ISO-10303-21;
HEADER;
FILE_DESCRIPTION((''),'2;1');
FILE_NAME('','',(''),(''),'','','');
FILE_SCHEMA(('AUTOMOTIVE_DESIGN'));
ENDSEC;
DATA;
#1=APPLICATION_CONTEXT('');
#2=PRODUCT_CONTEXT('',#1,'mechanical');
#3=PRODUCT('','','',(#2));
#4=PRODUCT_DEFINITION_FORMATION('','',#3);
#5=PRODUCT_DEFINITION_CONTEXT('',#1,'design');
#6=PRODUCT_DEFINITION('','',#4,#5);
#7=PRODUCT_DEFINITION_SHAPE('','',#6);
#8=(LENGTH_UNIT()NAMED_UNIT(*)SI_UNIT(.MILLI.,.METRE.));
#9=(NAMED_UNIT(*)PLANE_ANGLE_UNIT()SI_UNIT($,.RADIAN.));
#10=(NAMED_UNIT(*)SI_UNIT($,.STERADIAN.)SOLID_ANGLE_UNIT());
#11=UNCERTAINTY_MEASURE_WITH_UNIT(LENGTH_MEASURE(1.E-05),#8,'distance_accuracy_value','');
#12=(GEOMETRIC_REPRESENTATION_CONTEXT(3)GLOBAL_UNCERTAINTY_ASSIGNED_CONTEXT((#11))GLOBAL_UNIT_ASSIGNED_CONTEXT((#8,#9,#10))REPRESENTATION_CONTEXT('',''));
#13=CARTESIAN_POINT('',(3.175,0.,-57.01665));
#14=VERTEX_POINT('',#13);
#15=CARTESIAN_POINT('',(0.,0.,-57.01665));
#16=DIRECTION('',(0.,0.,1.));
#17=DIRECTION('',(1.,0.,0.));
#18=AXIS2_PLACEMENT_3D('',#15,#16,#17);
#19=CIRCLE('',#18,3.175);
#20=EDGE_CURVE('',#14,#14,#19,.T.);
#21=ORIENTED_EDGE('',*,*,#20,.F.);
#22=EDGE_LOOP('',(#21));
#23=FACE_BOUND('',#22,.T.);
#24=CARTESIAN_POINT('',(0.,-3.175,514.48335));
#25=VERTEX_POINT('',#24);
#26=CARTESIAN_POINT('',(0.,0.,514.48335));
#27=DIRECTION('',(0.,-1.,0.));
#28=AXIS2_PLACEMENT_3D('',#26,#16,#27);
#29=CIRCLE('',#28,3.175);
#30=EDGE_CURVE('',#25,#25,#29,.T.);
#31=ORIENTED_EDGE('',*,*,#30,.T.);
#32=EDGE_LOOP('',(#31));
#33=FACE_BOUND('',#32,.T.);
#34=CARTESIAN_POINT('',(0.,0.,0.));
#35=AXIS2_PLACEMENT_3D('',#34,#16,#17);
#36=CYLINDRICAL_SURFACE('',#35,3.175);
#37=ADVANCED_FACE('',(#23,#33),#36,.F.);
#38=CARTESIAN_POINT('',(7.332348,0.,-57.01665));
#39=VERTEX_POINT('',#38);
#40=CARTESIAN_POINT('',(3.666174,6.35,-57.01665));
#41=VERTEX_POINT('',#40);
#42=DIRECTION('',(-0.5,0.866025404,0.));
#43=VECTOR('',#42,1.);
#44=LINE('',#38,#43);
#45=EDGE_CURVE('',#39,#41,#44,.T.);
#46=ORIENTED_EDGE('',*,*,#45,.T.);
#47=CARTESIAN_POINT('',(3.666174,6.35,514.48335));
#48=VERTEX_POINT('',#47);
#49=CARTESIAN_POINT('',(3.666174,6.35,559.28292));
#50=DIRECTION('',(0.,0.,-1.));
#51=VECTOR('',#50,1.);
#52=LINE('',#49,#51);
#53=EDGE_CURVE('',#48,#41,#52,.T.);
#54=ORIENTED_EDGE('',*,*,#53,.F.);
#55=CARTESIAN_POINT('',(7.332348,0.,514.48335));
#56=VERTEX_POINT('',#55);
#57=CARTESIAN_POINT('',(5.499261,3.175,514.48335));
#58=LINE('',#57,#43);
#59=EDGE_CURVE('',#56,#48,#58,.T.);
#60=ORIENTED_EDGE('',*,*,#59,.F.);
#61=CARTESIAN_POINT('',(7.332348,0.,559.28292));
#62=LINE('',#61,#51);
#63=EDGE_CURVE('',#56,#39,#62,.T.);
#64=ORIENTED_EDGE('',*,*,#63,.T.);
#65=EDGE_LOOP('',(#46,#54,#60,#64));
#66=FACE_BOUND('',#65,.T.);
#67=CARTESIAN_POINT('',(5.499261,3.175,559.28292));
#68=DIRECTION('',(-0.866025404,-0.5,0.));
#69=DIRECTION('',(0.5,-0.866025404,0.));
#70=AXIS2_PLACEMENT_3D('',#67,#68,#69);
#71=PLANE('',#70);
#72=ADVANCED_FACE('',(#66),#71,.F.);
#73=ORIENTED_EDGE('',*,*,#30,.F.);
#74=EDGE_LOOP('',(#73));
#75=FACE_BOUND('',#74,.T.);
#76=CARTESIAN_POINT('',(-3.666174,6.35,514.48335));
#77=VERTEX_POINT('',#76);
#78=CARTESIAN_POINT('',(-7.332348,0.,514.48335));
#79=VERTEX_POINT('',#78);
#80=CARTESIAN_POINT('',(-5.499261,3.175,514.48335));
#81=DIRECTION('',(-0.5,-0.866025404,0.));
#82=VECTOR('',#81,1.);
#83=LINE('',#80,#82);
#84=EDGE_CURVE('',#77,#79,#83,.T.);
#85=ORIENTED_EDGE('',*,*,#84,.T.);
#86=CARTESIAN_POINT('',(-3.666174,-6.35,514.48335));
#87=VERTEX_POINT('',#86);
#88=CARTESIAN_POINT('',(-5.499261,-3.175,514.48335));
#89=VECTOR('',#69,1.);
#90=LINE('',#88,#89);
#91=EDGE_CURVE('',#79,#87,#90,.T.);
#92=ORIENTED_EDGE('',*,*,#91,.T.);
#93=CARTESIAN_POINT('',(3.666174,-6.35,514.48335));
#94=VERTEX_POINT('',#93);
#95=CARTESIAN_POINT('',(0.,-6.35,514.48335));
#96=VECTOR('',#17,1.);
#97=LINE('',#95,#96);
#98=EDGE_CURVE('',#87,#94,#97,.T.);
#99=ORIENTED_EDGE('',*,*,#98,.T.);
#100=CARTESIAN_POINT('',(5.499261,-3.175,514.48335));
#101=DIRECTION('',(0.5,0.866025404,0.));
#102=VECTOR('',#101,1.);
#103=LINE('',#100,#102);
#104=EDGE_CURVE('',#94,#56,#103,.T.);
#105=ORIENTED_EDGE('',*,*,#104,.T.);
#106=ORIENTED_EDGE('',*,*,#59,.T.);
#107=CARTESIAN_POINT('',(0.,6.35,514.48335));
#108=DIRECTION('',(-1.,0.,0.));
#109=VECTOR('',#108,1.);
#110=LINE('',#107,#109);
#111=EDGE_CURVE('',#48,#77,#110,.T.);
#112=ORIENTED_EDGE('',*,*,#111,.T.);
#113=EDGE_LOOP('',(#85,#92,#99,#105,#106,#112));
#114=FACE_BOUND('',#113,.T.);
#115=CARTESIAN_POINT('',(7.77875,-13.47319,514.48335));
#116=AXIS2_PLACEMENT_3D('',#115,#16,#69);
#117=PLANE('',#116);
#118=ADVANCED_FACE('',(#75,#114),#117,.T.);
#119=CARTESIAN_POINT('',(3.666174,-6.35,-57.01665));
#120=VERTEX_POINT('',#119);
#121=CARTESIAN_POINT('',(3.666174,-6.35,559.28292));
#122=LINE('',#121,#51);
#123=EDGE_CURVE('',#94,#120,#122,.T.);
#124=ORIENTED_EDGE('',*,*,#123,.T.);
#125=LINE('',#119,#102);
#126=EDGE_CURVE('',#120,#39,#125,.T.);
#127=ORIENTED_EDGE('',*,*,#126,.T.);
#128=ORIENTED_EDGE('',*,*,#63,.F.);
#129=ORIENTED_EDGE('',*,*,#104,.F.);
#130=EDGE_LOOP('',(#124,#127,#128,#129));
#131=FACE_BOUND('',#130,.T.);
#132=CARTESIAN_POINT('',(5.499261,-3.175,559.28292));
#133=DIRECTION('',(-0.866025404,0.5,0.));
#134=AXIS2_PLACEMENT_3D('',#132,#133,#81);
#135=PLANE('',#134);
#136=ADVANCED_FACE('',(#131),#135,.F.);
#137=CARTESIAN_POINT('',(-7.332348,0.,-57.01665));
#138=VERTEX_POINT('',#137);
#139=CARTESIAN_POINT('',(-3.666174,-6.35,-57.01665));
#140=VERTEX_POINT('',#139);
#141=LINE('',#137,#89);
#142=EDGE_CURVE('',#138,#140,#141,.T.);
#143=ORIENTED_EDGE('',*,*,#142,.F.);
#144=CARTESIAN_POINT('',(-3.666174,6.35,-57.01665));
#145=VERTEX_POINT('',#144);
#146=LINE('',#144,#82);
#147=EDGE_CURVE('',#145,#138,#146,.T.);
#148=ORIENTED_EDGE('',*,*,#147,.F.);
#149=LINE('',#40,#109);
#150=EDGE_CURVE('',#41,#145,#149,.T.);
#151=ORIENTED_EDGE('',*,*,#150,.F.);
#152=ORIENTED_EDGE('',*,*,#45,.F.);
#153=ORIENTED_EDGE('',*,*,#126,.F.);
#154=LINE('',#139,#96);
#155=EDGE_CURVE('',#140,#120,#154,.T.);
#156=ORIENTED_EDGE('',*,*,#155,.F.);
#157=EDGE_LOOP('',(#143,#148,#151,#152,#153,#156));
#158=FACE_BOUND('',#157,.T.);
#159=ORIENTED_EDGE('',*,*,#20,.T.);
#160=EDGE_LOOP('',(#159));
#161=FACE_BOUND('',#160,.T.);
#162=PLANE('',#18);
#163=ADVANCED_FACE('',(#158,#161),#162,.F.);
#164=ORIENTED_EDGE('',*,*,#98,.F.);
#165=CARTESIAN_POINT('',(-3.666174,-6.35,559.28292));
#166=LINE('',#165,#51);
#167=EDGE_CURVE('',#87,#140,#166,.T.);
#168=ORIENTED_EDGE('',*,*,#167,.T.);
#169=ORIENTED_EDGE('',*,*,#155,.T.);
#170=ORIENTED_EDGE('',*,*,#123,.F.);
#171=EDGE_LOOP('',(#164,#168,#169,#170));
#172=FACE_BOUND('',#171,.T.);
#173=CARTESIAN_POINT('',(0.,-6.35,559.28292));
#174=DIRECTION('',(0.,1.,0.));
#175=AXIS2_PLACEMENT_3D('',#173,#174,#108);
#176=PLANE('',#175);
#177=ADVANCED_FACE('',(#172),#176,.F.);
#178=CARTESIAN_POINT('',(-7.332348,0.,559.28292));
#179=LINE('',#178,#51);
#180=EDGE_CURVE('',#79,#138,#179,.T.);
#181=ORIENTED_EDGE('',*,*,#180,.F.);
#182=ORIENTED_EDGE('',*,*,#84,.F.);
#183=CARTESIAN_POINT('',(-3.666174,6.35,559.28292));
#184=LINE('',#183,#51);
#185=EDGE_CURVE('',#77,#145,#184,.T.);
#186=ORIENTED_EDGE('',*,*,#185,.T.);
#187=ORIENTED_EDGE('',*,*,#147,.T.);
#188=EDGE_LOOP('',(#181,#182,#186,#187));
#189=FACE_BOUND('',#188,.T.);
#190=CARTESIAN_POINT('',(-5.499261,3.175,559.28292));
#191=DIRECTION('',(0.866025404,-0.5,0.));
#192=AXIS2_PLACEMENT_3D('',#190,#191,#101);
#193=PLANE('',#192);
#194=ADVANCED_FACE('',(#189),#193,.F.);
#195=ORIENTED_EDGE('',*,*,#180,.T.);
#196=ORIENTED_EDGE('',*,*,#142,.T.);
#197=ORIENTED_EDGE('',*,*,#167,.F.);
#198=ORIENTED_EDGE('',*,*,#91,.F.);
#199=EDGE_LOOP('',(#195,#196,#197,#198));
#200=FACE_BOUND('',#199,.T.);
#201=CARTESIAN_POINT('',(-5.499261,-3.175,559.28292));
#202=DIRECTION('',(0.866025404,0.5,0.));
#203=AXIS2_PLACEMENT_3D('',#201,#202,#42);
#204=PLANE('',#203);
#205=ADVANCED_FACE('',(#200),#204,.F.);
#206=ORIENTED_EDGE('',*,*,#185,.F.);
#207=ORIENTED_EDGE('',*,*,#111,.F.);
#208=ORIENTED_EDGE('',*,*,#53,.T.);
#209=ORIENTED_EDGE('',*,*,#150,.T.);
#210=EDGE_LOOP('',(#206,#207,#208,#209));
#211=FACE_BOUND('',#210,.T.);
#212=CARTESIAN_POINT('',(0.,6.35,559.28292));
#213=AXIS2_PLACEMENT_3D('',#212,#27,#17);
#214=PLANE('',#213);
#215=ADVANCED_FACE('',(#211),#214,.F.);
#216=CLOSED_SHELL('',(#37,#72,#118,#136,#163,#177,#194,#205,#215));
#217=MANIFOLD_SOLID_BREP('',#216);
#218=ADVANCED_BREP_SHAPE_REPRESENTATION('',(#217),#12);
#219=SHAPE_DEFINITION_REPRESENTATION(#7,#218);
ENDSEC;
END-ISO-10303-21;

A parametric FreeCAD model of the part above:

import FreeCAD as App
import Part
import Sketcher
Q = App.Units.Quantity


def add_polygon(sketch, points):
    """Adds a closed chain of lines whose ends are joined by coincident constraints."""
    first, n = sketch.GeometryCount, len(points)
    for a, b in zip(points, points[1:] + points[:1]):
        sketch.addGeometry(Part.LineSegment(App.Vector(*a, 0), App.Vector(*b, 0)), False)
    for i in range(n):
        sketch.addConstraint(Sketcher.Constraint("Coincident", first + i, 2, first + (i + 1) % n, 1))

doc = App.newDocument("Part")
body = doc.addObject("PartDesign::Body", "Body")

sketch1 = body.newObject("Sketcher::SketchObject", "Sketch")
sketch1.AttachmentSupport = (doc.getObject("XY_Plane"), [""])
sketch1.MapMode = "FlatFace"
add_polygon(sketch1, [(-7, 0), (-4, -6), (4, -6), (7, 0), (4, 6), (-4, 6)])
sketch1.addConstraint([
    Sketcher.Constraint("Horizontal", 1),
    Sketcher.Constraint("Horizontal", 4),
    Sketcher.Constraint("Symmetric", 0, 2, 3, 2, -1, 1),
    Sketcher.Constraint("Symmetric", 2, 2, 5, 2, -1, 1),
    Sketcher.Constraint("PointOnObject", 2, 2, -1),
    Sketcher.Constraint("Parallel", 2, 5),
    Sketcher.Constraint("Vertical", 1, 2, 3, 2),
    Sketcher.Constraint("Angle", 0, Q("-60 deg")),
    Sketcher.Constraint("DistanceY", 1, 2, 3, 2, Q("0.5 in")),
    Sketcher.Constraint("DistanceX", 1, 1, 1, 2, Q("7.332348 mm")),
])
pad1 = body.newObject("PartDesign::Pad", "Pad")
pad1.Profile = sketch1
pad1.Length = 514.48335

sketch2 = body.newObject("Sketcher::SketchObject", "Sketch001")
sketch2.AttachmentSupport = (doc.getObject("XY_Plane"), [""])
sketch2.MapMode = "FlatFace"
sketch2.AttachmentOffset = App.Placement(App.Vector(0, 0, 514.48335), App.Rotation())
sketch2.addGeometry(Part.Circle(App.Vector(0, 0, 0), App.Vector(0, 0, 1), 3.2), False)
sketch2.addConstraint([
    Sketcher.Constraint("Coincident", 0, 3, -1, 1),
    Sketcher.Constraint("Diameter", 0, Q("0.25 in")),
])
pocket1 = body.newObject("PartDesign::Pocket", "Pocket")
pocket1.Profile = sketch2
pocket1.Type = "ThroughAll"
pocket1.Midplane = True

sketch3 = body.newObject("Sketcher::SketchObject", "Sketch002")
sketch3.AttachmentSupport = (doc.getObject("XY_Plane"), [""])
sketch3.MapMode = "FlatFace"
sketch3.AttachmentOffset = App.Placement(App.Vector(0, 0, 514.48335), App.Rotation())
add_polygon(sketch3, [(-3.7, -6.3), (3.7, -6.3), (7.3, 0), (3.7, 6.3), (-3.7, 6.3), (-7.3, 0)])
sketch3.addGeometry(Part.Circle(App.Vector(0, 0, 0), App.Vector(0, 0, 1), 3.2), False)
sketch3.addConstraint([
    Sketcher.Constraint("Horizontal", 0),
    Sketcher.Constraint("Horizontal", 3),
    Sketcher.Constraint("Coincident", 6, 3, -1, 1),
    Sketcher.Constraint("Symmetric", 0, 2, 3, 2, -1, 1),
    Sketcher.Constraint("Symmetric", 1, 2, 4, 2, -1, 1),
    Sketcher.Constraint("PointOnObject", 1, 2, -1),
    Sketcher.Constraint("Parallel", 2, 5),
    Sketcher.Constraint("Vertical", 0, 2, 2, 2),
    Sketcher.Constraint("Diameter", 6, Q("0.25 in")),
    Sketcher.Constraint("Angle", 1, Q("60 deg")),
    Sketcher.Constraint("DistanceY", 0, 2, 2, 2, Q("0.5 in")),
    Sketcher.Constraint("DistanceX", 0, 1, 0, 2, Q("7.332348 mm")),
])
pad2 = body.newObject("PartDesign::Pad", "Pad001")
pad2.Profile = sketch3
pad2.Length = Q("22.5 in")
pad2.Reversed = True

doc.recompute()
